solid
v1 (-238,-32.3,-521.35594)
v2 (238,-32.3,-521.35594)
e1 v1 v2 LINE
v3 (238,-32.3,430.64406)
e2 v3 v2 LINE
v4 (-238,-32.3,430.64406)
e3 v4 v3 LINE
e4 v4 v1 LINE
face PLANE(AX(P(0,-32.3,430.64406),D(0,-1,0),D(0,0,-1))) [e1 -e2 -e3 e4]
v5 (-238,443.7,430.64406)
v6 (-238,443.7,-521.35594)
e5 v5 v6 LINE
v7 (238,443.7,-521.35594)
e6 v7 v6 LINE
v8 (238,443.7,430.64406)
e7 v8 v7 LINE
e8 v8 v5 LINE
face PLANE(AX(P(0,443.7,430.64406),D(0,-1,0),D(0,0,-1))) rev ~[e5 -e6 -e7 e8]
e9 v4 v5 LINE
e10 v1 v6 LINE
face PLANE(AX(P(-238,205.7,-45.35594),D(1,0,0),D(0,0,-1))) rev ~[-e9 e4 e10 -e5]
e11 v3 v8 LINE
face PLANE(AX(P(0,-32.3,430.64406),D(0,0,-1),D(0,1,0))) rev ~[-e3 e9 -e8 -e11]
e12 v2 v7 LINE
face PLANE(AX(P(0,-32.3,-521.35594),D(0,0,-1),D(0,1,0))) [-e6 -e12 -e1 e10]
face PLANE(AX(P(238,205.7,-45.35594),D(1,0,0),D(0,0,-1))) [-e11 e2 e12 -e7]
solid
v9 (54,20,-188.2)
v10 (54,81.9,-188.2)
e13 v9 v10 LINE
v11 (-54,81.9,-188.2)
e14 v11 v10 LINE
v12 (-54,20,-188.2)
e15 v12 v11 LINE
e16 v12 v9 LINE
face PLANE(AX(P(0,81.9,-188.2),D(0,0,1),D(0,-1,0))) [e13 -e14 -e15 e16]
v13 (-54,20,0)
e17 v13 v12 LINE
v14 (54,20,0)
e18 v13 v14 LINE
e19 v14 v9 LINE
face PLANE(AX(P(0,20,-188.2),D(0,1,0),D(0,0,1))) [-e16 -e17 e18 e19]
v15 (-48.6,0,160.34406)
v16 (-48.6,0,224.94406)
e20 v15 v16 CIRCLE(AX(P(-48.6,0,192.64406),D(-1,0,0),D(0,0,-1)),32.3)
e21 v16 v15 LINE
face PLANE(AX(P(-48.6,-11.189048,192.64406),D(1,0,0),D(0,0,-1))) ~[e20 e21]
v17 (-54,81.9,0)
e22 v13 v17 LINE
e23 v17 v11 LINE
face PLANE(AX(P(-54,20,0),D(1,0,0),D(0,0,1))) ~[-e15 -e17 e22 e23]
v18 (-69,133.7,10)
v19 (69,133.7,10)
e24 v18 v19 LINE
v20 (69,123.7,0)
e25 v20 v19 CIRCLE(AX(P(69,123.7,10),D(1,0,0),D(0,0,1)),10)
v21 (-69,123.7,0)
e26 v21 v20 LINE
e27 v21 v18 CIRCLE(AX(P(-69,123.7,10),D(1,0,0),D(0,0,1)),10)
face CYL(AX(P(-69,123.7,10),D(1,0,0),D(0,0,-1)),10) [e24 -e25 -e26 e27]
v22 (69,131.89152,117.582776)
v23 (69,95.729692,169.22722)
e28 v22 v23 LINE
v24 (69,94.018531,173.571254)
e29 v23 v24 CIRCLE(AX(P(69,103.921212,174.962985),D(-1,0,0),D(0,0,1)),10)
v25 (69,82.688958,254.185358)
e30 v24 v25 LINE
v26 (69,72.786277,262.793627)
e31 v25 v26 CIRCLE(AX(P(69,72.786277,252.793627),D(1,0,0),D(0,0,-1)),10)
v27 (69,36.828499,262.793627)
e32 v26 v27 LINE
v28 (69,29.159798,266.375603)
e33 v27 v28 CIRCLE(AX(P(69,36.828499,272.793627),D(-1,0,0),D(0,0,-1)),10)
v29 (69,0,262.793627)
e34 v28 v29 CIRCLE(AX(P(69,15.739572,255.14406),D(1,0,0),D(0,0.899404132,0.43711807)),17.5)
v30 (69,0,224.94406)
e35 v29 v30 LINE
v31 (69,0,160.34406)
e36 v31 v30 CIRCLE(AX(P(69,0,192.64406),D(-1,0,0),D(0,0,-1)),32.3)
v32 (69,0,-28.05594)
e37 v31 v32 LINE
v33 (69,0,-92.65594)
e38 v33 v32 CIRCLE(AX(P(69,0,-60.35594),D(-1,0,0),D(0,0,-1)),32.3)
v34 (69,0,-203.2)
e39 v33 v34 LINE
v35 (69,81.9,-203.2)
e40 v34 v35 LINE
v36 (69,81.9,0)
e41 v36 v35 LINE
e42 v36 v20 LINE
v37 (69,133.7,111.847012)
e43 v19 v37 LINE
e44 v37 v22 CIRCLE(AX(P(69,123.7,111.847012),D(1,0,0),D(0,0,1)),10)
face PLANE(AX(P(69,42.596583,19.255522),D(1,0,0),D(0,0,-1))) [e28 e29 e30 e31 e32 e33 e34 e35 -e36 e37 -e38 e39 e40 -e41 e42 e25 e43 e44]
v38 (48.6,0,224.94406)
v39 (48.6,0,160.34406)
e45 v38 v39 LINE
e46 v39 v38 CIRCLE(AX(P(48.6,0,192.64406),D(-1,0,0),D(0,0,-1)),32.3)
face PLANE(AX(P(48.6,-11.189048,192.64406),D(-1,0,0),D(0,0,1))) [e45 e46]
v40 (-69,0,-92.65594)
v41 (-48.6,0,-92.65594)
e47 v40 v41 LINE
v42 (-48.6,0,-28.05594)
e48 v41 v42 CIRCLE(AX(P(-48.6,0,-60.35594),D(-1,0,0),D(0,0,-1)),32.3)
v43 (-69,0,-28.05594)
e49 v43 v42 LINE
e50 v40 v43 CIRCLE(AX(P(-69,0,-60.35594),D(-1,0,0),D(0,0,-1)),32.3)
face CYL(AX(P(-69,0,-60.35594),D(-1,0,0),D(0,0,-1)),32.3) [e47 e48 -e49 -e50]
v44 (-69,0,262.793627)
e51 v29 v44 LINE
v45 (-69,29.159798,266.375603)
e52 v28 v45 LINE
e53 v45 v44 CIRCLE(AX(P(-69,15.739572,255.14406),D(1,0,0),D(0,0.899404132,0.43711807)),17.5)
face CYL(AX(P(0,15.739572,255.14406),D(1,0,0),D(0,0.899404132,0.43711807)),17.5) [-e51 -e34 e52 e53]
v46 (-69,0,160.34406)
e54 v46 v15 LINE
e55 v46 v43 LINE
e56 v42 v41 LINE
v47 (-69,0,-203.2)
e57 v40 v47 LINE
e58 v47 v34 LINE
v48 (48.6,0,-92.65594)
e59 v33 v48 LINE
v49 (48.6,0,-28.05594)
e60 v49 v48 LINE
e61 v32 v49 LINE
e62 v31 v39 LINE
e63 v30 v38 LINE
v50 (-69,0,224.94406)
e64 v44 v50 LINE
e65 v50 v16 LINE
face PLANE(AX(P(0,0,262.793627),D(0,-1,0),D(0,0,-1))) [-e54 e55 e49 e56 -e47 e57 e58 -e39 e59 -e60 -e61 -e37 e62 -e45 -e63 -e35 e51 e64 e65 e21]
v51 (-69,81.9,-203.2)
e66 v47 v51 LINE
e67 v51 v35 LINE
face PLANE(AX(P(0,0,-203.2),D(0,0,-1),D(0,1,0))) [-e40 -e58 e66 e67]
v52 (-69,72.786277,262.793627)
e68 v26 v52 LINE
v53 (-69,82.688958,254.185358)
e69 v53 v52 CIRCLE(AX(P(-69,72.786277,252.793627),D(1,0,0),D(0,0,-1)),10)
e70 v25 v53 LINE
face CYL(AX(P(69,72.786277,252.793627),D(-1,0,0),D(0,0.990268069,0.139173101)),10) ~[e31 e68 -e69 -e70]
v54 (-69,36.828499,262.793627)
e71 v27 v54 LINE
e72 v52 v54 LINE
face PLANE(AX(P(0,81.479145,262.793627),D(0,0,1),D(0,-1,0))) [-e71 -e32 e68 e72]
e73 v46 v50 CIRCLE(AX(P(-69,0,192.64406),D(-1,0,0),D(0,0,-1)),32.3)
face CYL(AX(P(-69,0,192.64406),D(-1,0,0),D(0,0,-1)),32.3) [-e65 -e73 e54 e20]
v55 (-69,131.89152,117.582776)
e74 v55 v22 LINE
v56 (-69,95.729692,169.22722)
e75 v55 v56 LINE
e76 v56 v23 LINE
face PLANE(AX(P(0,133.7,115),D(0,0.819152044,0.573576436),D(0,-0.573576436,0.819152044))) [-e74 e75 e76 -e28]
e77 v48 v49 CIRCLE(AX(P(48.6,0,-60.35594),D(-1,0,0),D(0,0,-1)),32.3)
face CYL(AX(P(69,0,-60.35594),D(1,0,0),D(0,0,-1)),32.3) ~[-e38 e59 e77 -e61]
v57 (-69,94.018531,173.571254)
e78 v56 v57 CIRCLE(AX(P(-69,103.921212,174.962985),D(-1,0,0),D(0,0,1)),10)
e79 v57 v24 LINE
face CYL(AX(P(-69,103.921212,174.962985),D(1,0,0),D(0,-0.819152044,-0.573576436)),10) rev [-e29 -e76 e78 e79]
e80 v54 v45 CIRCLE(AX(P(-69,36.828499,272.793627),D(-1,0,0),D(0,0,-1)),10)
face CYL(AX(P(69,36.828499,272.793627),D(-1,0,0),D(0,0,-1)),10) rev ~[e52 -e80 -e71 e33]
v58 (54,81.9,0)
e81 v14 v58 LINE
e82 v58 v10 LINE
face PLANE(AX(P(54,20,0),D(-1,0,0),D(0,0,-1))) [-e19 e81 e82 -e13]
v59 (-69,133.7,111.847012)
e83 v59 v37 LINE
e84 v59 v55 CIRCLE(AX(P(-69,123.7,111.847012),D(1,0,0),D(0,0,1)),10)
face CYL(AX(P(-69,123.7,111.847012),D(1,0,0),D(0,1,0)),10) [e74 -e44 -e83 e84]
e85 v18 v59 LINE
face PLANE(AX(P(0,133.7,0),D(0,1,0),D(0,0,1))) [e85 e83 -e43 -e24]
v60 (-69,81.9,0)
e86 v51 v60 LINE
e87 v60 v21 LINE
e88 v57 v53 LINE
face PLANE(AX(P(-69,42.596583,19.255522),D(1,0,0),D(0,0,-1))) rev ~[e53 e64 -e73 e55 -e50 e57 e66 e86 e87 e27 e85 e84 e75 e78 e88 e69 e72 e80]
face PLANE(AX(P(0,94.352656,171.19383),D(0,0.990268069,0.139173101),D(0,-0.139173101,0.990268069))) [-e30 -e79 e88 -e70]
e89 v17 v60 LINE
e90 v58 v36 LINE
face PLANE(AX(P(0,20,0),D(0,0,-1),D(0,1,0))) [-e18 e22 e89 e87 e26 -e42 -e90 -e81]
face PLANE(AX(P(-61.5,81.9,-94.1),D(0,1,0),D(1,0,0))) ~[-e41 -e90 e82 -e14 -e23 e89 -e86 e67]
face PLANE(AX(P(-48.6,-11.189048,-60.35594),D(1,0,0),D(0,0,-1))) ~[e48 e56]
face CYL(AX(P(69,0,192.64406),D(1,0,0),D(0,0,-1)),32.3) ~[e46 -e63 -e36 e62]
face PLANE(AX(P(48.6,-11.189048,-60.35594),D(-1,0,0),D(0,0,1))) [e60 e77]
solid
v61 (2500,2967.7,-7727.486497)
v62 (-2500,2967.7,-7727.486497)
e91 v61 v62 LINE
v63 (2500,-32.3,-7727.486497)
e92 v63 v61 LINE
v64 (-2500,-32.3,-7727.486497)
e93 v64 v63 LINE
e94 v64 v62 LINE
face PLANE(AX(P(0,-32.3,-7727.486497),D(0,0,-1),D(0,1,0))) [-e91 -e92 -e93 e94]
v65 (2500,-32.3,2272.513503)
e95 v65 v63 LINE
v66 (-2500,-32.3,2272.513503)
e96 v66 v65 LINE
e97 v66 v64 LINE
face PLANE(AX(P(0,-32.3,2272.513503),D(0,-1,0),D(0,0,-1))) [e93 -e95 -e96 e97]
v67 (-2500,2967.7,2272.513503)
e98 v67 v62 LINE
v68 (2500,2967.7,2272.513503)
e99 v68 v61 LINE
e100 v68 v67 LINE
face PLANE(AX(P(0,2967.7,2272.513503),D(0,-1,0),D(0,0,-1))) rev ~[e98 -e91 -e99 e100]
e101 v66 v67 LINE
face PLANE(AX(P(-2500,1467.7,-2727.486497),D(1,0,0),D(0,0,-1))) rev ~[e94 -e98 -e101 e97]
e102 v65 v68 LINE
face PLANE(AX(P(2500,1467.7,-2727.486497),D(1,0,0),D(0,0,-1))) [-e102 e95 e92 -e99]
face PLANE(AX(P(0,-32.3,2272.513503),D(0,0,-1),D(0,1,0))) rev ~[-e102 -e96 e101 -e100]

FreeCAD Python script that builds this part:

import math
import FreeCAD as App
import Part
import Sketcher

V = App.Vector
Q = App.Units.Quantity


def edges_at(feature, points):
    """Names of the edges that pass closest to the given points."""
    edges = feature.Shape.Edges
    near = lambda p: min(range(len(edges)), key=lambda i: edges[i].distToShape(Part.Vertex(*p))[0])
    return sorted({f"Edge{near(p) + 1}" for p in points})


def add_polygon(sketch, points):
    """Adds a closed chain of lines whose ends are joined by coincident constraints."""
    first, n = sketch.GeometryCount, len(points)
    for a, b in zip(points, points[1:] + points[:1]):
        sketch.addGeometry(Part.LineSegment(App.Vector(*a, 0), App.Vector(*b, 0)), False)
    for i in range(n):
        sketch.addConstraint(Sketcher.Constraint("Coincident", first + i, 2, first + (i + 1) % n, 1))

doc = App.newDocument("Part")
params = doc.addObject("Spreadsheet::Sheet", "Params")
for row, (alias, value) in enumerate([
    ("sketch1_radius", "17.5 mm"),
    ("sketch1_width", "50 mm"),
    ("sketch1_height", "15 mm"),
    ("sketch1_height2", "115 mm"),
    ("sketch1_width2", "81.9 mm"),
    ("pad1_length", "138 mm"),
    ("sketch2_width", "15 mm"),
    ("sketch2_height", "188.2 mm"),
    ("pad2_length", "61.9 mm"),
    ("sketch3_radius", "32.3 mm"),
    ("pad3_length", "20.4 mm"),
    ("fillet_radius", "10 mm"),
    ("sketch4_width", "3000 mm"),
    ("sketch4_height", "10000 mm"),
    ("pad4_length", "5000 mm"),
    ("sketch5_width", "476 mm"),
    ("sketch5_height", "952 mm"),
    ("pad5_length", "476 mm"),
], start=1):
    params.set(f"A{row}", alias)
    params.set(f"B{row}", "=" + value)
    params.setAlias(f"B{row}", alias)

body = doc.addObject("PartDesign::Body", "Body")

sketch1 = doc.addObject("Sketcher::SketchObject", "Sketch")
body.addObject(sketch1)
sketch1.AttachmentSupport = (doc.YZ_Plane, [""])
sketch1.MapMode = "FlatFace"
sketch1.addGeometry(Part.LineSegment(V(0, 262.793627, 0), V(0, -203.2, 0)), False)
sketch1.addGeometry(Part.LineSegment(V(0, -203.2, 0), V(81.9, -203.2, 0)), False)
sketch1.addGeometry(Part.LineSegment(V(81.9, -203.2, 0), V(81.9, -188.2, 0)), False)
sketch1.addGeometry(Part.LineSegment(V(81.9, -188.2, 0), V(20, -188.2, 0)), False)
sketch1.addGeometry(Part.LineSegment(V(20, -188.2, 0), V(20, 0, 0)), False)
sketch1.addGeometry(Part.LineSegment(V(20, 0, 0), V(133.7, 0, 0)), False)
sketch1.addGeometry(Part.LineSegment(V(133.7, 0, 0), V(133.7, 115, 0)), False)
sketch1.addGeometry(Part.LineSegment(V(133.7, 115, 0), V(94.352656, 171.19383, 0)), False)
sketch1.addGeometry(Part.LineSegment(V(94.352656, 171.19383, 0), V(81.479145, 262.793627, 0)), False)
sketch1.addGeometry(Part.LineSegment(V(81.479145, 262.793627, 0), V(31.479145, 262.793627, 0)), False)
sketch1.addGeometry(Part.ArcOfCircle(Part.Circle(V(15.739572, 255.14406, 0), V(0, 0, 1), 17.5), math.radians(25.920147), math.radians(154.079853)), False)
sketch1.addConstraint(Sketcher.Constraint("Coincident", 0, 2, 1, 1))
sketch1.addConstraint(Sketcher.Constraint("Coincident", 1, 2, 2, 1))
sketch1.addConstraint(Sketcher.Constraint("Coincident", 2, 2, 3, 1))
sketch1.addConstraint(Sketcher.Constraint("Coincident", 3, 2, 4, 1))
sketch1.addConstraint(Sketcher.Constraint("Coincident", 4, 2, 5, 1))
sketch1.addConstraint(Sketcher.Constraint("Coincident", 5, 2, 6, 1))
sketch1.addConstraint(Sketcher.Constraint("Coincident", 6, 2, 7, 1))
sketch1.addConstraint(Sketcher.Constraint("Coincident", 7, 2, 8, 1))
sketch1.addConstraint(Sketcher.Constraint("Coincident", 8, 2, 9, 1))
sketch1.addConstraint(Sketcher.Constraint("Coincident", 9, 2, 10, 1))
sketch1.addConstraint(Sketcher.Constraint("Coincident", 10, 2, 0, 1))
sketch1.addConstraint(Sketcher.Constraint("Vertical", 0))
sketch1.addConstraint(Sketcher.Constraint("Horizontal", 1))
sketch1.addConstraint(Sketcher.Constraint("Vertical", 2))
sketch1.addConstraint(Sketcher.Constraint("Horizontal", 3))
sketch1.addConstraint(Sketcher.Constraint("Vertical", 4))
sketch1.addConstraint(Sketcher.Constraint("Horizontal", 5))
sketch1.addConstraint(Sketcher.Constraint("Vertical", 6))
sketch1.addConstraint(Sketcher.Constraint("Horizontal", 9))
sketch1.addConstraint(Sketcher.Constraint("PointOnObject", 0, 2, -2))
sketch1.addConstraint(Sketcher.Constraint("PointOnObject", 4, 2, -1))
sketch1.addConstraint(Sketcher.Constraint("Horizontal", 9, 2, 10, 2))
sketch1.addConstraint(Sketcher.Constraint("Radius", 10, Q("17.5 mm")))
sketch1.addConstraint(Sketcher.Constraint("DistanceX", 9, 2, 9, 1, Q("50 mm")))
sketch1.addConstraint(Sketcher.Constraint("DistanceY", 2, 1, 2, 2, Q("15 mm")))
sketch1.addConstraint(Sketcher.Constraint("DistanceY", 6, 1, 6, 2, Q("115 mm")))
sketch1.addConstraint(Sketcher.Constraint("Angle", 7, Q("125 deg")))
sketch1.addConstraint(Sketcher.Constraint("Angle", 8, Q("98 deg")))
sketch1.addConstraint(Sketcher.Constraint("DistanceX", 1, 1, 1, 2, Q("81.9 mm")))
sketch1.addConstraint(Sketcher.Constraint("DistanceX", 3, 2, 3, 1, Q("61.9 mm")))
sketch1.addConstraint(Sketcher.Constraint("DistanceX", 5, 1, 5, 2, Q("113.7 mm")))
sketch1.addConstraint(Sketcher.Constraint("DistanceY", 4, 1, 4, 2, Q("188.2 mm")))
sketch1.addConstraint(Sketcher.Constraint("Distance", 7, Q("68.6 mm")))
sketch1.addConstraint(Sketcher.Constraint("Distance", 8, Q("92.5 mm")))
sketch1.setExpression("Constraints[22]", "Params.sketch1_radius")
sketch1.setExpression("Constraints[23]", "Params.sketch1_width")
sketch1.setExpression("Constraints[24]", "Params.sketch1_height")
sketch1.setExpression("Constraints[25]", "Params.sketch1_height2")
sketch1.setExpression("Constraints[28]", "Params.sketch1_width2")
pad1 = doc.addObject("PartDesign::Pad", "Pad")
body.addObject(pad1)
pad1.Profile = sketch1
pad1.setExpression("Length", "Params.pad1_length")
pad1.Midplane = True

sketch2 = doc.addObject("Sketcher::SketchObject", "Sketch001")
body.addObject(sketch2)
sketch2.AttachmentSupport = (doc.XZ_Plane, [""])
sketch2.MapMode = "FlatFace"
sketch2.AttachmentOffset = App.Placement(V(0, 0, -20), App.Rotation())
add_polygon(sketch2, [(54, -188.2), (54, 0), (69, 0), (69, -188.2)])
sketch2.addConstraint(Sketcher.Constraint("Vertical", 0))
sketch2.addConstraint(Sketcher.Constraint("Horizontal", 1))
sketch2.addConstraint(Sketcher.Constraint("Vertical", 2))
sketch2.addConstraint(Sketcher.Constraint("Horizontal", 3))
sketch2.addConstraint(Sketcher.Constraint("PointOnObject", 0, 2, -1))
sketch2.addConstraint(Sketcher.Constraint("DistanceX", 1, 1, 1, 2, Q("15 mm")))
sketch2.addConstraint(Sketcher.Constraint("DistanceY", 0, 1, 0, 2, Q("188.2 mm")))
sketch2.addConstraint(Sketcher.Constraint("DistanceX", -1, 1, 0, 2, Q("54 mm")))
sketch2.setExpression("Constraints[9]", "Params.sketch2_width")
sketch2.setExpression("Constraints[10]", "Params.sketch2_height")
pad2 = doc.addObject("PartDesign::Pad", "Pad001")
body.addObject(pad2)
pad2.Profile = sketch2
pad2.setExpression("Length", "Params.pad2_length")
pad2.Reversed = True
doc.recompute()

mirrored = doc.addObject("PartDesign::Mirrored", "Mirrored")
body.addObject(mirrored)
mirrored.Originals = [pad2]
mirrored.MirrorPlane = (doc.YZ_Plane, [""])
body.Tip = mirrored

sketch3 = doc.addObject("Sketcher::SketchObject", "Sketch002")
body.addObject(sketch3)
sketch3.AttachmentSupport = (doc.YZ_Plane, [""])
sketch3.MapMode = "FlatFace"
sketch3.AttachmentOffset = App.Placement(V(0, 0, 69), App.Rotation())
sketch3.addGeometry(Part.LineSegment(V(0, 160.34406, 0), V(0, 224.94406, 0)), False)
sketch3.addGeometry(Part.ArcOfCircle(Part.Circle(V(0, 192.64406, 0), V(0, 0, 1), 32.3), math.radians(90), math.radians(270)), False)
sketch3.addGeometry(Part.LineSegment(V(0, -92.65594, 0), V(0, -28.05594, 0)), False)
sketch3.addGeometry(Part.ArcOfCircle(Part.Circle(V(0, -60.35594, 0), V(0, 0, 1), 32.3), math.radians(90), math.radians(270)), False)
sketch3.addConstraint(Sketcher.Constraint("Coincident", 0, 1, 1, 2))
sketch3.addConstraint(Sketcher.Constraint("Coincident", 1, 1, 0, 2))
sketch3.addConstraint(Sketcher.Constraint("Coincident", 2, 1, 3, 2))
sketch3.addConstraint(Sketcher.Constraint("Coincident", 3, 1, 2, 2))
sketch3.addConstraint(Sketcher.Constraint("Vertical", 0))
sketch3.addConstraint(Sketcher.Constraint("Vertical", 2))
sketch3.addConstraint(Sketcher.Constraint("Equal", 1, 3))
sketch3.addConstraint(Sketcher.Constraint("PointOnObject", 1, 3, -2))
sketch3.addConstraint(Sketcher.Constraint("PointOnObject", 3, 3, -2))
sketch3.addConstraint(Sketcher.Constraint("PointOnObject", 0, 1, -2))
sketch3.addConstraint(Sketcher.Constraint("PointOnObject", 2, 1, -2))
sketch3.addConstraint(Sketcher.Constraint("Radius", 1, Q("32.3 mm")))
sketch3.addConstraint(Sketcher.Constraint("DistanceY", 3, 3, 1, 3, Q("253 mm")))
sketch3.addConstraint(Sketcher.Constraint("DistanceY", -1, 1, 1, 3, Q("192.64406 mm")))
sketch3.setExpression("Constraints[11]", "Params.sketch3_radius")
pad3 = doc.addObject("PartDesign::Pad", "Pad002")
body.addObject(pad3)
pad3.Profile = sketch3
pad3.setExpression("Length", "Params.pad3_length")
pad3.Reversed = True
doc.recompute()

mirrored2 = doc.addObject("PartDesign::Mirrored", "Mirrored001")
body.addObject(mirrored2)
mirrored2.Originals = [pad3]
mirrored2.MirrorPlane = (doc.YZ_Plane, [""])
body.Tip = mirrored2
doc.recompute()

fillet = doc.addObject("PartDesign::Fillet", "Fillet")
body.addObject(fillet)
fillet.Base = (mirrored2, edges_at(mirrored2, [
    (0, 31.479, 262.794),
    (0, 81.479, 262.794),
    (0, 94.353, 171.194),
    (0, 133.7, 115),
    (0, 133.7, 0),
]))
fillet.setExpression("Radius", "Params.fillet_radius")
body2 = doc.addObject("PartDesign::Body", "Body001")

sketch4 = doc.addObject("Sketcher::SketchObject", "Sketch003")
body2.addObject(sketch4)
sketch4.AttachmentSupport = (doc.getObject("YZ_Plane001"), [""])
sketch4.MapMode = "FlatFace"
add_polygon(sketch4, [(2967.7, 2272.513503), (-32.3, 2272.513503), (-32.3, -7727.486497), (2967.7, -7727.486497)])
sketch4.addConstraint(Sketcher.Constraint("Horizontal", 0))
sketch4.addConstraint(Sketcher.Constraint("Vertical", 1))
sketch4.addConstraint(Sketcher.Constraint("Horizontal", 2))
sketch4.addConstraint(Sketcher.Constraint("Vertical", 3))
sketch4.addConstraint(Sketcher.Constraint("DistanceX", 0, 2, 0, 1, Q("3000 mm")))
sketch4.addConstraint(Sketcher.Constraint("DistanceY", 1, 2, 1, 1, Q("10000 mm")))
sketch4.addConstraint(Sketcher.Constraint("DistanceX", 0, 2, -1, 1, Q("32.3 mm")))
sketch4.addConstraint(Sketcher.Constraint("DistanceY", -1, 1, 0, 2, Q("2272.513503 mm")))
sketch4.setExpression("Constraints[8]", "Params.sketch4_width")
sketch4.setExpression("Constraints[9]", "Params.sketch4_height")
pad4 = doc.addObject("PartDesign::Pad", "Pad003")
body2.addObject(pad4)
pad4.Profile = sketch4
pad4.setExpression("Length", "Params.pad4_length")
pad4.Midplane = True
body3 = doc.addObject("PartDesign::Body", "Body002")

sketch5 = doc.addObject("Sketcher::SketchObject", "Sketch004")
body3.addObject(sketch5)
sketch5.AttachmentSupport = (doc.getObject("YZ_Plane002"), [""])
sketch5.MapMode = "FlatFace"
add_polygon(sketch5, [(443.7, 430.64406), (-32.3, 430.64406), (-32.3, -521.35594), (443.7, -521.35594)])
sketch5.addConstraint(Sketcher.Constraint("Horizontal", 0))
sketch5.addConstraint(Sketcher.Constraint("Vertical", 1))
sketch5.addConstraint(Sketcher.Constraint("Horizontal", 2))
sketch5.addConstraint(Sketcher.Constraint("Vertical", 3))
sketch5.addConstraint(Sketcher.Constraint("DistanceX", 0, 2, 0, 1, Q("476 mm")))
sketch5.addConstraint(Sketcher.Constraint("DistanceY", 1, 2, 1, 1, Q("952 mm")))
sketch5.addConstraint(Sketcher.Constraint("DistanceX", 0, 2, -1, 1, Q("32.3 mm")))
sketch5.addConstraint(Sketcher.Constraint("DistanceY", -1, 1, 0, 2, Q("430.64406 mm")))
sketch5.setExpression("Constraints[8]", "Params.sketch5_width")
sketch5.setExpression("Constraints[9]", "Params.sketch5_height")
pad5 = doc.addObject("PartDesign::Pad", "Pad004")
body3.addObject(pad5)
pad5.Profile = sketch5
pad5.setExpression("Length", "Params.pad5_length")
pad5.Midplane = True

doc.recompute()
